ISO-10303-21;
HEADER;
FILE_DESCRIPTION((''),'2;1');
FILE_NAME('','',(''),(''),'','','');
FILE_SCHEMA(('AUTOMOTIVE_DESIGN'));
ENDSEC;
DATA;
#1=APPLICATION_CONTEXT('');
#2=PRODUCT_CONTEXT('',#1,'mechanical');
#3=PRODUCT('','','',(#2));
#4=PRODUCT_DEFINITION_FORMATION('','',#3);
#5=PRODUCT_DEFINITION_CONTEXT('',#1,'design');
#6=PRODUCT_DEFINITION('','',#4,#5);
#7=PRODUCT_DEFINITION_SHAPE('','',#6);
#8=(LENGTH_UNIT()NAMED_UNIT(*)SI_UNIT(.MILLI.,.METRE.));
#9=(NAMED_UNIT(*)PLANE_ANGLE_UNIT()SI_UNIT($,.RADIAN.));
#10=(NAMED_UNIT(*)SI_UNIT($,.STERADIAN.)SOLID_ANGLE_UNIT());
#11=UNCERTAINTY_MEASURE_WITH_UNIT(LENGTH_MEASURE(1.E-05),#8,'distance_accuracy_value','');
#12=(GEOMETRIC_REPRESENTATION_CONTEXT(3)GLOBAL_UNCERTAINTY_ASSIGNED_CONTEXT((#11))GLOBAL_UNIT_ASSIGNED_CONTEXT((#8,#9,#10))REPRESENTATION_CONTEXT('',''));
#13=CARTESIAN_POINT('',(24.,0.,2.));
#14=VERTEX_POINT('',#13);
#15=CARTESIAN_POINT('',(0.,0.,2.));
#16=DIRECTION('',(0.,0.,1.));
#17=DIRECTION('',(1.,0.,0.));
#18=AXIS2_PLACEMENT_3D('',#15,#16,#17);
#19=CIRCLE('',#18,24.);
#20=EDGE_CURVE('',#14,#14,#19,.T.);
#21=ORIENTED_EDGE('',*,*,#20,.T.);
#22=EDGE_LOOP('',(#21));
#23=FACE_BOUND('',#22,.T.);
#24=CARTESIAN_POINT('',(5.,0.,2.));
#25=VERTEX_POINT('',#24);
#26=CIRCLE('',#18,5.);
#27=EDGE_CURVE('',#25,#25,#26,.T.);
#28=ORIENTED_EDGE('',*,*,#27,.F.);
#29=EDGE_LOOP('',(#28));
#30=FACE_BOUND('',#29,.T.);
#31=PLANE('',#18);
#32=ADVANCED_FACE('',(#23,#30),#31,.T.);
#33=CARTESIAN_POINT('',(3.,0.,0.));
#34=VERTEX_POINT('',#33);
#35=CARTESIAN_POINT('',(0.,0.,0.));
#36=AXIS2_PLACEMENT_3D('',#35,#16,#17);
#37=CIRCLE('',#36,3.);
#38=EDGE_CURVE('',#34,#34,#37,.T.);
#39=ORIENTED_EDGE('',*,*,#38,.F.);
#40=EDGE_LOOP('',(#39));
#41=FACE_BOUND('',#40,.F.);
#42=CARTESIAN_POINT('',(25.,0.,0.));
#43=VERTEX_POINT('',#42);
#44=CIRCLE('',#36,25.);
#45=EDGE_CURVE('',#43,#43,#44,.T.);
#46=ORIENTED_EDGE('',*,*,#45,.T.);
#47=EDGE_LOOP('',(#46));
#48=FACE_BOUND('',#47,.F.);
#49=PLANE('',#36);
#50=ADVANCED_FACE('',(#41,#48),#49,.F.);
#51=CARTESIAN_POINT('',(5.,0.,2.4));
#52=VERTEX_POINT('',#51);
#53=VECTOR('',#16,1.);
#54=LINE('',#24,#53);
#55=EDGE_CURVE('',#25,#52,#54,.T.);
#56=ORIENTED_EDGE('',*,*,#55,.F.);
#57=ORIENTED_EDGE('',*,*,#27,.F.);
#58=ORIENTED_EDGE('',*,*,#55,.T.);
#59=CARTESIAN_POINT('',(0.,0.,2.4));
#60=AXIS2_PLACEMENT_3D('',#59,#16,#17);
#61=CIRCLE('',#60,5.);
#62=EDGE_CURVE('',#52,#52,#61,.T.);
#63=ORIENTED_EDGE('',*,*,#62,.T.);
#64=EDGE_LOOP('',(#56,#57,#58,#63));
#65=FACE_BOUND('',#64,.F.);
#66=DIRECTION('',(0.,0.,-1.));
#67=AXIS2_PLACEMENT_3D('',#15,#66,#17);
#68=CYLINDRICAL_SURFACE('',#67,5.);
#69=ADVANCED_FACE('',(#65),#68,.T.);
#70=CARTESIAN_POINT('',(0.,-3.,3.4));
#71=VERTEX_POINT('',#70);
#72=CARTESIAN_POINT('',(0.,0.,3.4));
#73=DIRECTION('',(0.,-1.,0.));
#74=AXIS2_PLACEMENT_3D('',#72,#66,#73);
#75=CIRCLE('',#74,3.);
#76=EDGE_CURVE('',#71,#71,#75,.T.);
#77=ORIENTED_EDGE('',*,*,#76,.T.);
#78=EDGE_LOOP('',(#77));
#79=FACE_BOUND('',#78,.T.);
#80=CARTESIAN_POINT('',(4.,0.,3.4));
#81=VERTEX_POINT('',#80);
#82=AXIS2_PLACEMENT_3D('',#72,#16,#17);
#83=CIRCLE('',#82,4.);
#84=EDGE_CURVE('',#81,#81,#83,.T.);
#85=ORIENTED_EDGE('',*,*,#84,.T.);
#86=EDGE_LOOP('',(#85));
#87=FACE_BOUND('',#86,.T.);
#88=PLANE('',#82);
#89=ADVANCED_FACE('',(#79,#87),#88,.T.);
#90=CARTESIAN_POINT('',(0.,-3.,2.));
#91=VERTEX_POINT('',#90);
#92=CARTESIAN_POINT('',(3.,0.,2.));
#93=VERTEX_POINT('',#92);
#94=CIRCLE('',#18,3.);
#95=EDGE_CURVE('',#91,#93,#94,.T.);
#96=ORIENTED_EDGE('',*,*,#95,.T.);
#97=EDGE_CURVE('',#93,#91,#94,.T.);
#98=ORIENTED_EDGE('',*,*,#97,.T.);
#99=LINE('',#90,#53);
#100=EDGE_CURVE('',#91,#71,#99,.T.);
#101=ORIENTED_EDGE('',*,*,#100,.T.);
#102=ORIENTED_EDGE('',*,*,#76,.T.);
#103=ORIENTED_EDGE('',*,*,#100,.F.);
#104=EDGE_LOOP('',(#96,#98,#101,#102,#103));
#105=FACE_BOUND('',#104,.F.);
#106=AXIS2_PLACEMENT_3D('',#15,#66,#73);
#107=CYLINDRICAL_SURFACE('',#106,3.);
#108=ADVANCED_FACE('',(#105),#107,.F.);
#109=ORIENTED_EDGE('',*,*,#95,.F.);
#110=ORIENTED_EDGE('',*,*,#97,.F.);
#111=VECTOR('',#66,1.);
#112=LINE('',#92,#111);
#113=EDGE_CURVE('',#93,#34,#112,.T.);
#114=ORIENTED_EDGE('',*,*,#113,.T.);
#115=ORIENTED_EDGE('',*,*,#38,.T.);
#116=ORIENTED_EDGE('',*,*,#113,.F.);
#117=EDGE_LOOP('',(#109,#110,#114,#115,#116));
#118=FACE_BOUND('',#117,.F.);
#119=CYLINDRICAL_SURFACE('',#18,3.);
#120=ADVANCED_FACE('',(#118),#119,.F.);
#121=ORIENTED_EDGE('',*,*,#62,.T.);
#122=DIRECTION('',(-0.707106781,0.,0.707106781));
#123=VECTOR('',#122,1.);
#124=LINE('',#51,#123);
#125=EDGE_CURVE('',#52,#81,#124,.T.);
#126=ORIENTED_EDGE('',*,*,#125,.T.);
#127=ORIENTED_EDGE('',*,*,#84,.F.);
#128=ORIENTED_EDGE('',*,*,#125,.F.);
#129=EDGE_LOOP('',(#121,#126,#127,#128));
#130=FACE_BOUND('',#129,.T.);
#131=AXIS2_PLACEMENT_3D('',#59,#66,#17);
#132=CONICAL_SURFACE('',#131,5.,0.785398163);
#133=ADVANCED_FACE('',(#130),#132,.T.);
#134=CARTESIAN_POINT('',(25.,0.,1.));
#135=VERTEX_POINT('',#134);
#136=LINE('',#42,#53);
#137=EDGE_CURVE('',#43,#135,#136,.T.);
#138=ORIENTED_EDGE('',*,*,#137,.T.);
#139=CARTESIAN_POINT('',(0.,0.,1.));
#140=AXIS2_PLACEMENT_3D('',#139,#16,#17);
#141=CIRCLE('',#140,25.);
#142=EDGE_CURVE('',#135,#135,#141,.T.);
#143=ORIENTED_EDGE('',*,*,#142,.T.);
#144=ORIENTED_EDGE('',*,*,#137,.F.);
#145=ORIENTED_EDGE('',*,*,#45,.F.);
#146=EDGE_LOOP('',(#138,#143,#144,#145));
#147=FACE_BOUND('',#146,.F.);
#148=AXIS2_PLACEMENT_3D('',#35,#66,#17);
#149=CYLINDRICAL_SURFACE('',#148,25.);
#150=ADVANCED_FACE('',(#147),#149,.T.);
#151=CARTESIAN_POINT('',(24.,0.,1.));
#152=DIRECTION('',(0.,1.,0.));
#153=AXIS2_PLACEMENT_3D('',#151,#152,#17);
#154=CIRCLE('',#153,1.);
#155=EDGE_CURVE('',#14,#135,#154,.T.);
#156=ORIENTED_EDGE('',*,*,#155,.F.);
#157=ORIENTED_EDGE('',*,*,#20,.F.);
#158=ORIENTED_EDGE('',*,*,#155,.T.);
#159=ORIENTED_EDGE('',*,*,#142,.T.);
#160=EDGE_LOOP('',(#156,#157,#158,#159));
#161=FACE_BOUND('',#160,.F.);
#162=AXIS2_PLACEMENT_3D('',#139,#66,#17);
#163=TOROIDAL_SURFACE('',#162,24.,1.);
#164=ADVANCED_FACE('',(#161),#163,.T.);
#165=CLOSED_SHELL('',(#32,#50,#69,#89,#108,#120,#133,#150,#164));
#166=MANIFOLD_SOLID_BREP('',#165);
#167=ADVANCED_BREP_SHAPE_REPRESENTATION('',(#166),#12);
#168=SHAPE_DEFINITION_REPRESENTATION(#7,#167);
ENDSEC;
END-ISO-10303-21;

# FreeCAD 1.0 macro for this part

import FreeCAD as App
import Part
import Sketcher

V = App.Vector
Q = App.Units.Quantity


def edges_at(feature, points):
    """Names of the edges that pass closest to the given points."""
    edges = feature.Shape.Edges
    near = lambda p: min(range(len(edges)), key=lambda i: edges[i].distToShape(Part.Vertex(*p))[0])
    return sorted({f"Edge{near(p) + 1}" for p in points})

doc = App.newDocument("Part")
body = doc.addObject("PartDesign::Body", "Body")

sketch1 = doc.addObject("Sketcher::SketchObject", "Sketch")
body.addObject(sketch1)
sketch1.AttachmentSupport = (doc.XY_Plane, [""])
sketch1.MapMode = "FlatFace"
sketch1.addGeometry(Part.Circle(V(0, 0, 0), V(0, 0, 1), 25), False)
sketch1.addConstraint([
    Sketcher.Constraint("Coincident", 0, 3, -1, 1),
    Sketcher.Constraint("Diameter", 0, Q("50 mm")),
])
pad1 = doc.addObject("PartDesign::Pad", "Pad")
body.addObject(pad1)
pad1.Profile = sketch1
pad1.Length = 2

sketch2 = doc.addObject("Sketcher::SketchObject", "Sketch001")
body.addObject(sketch2)
sketch2.AttachmentSupport = (doc.XY_Plane, [""])
sketch2.MapMode = "FlatFace"
sketch2.AttachmentOffset = App.Placement(V(0, 0, 2), App.Rotation())
sketch2.addGeometry(Part.Circle(V(0, 0, 0), V(0, 0, 1), 3), False)
sketch2.addConstraint([
    Sketcher.Constraint("Coincident", 0, 3, -1, 1),
    Sketcher.Constraint("Diameter", 0, Q("6 mm")),
])
pocket1 = doc.addObject("PartDesign::Pocket", "Pocket")
body.addObject(pocket1)
pocket1.Profile = sketch2
pocket1.Length = 5

sketch3 = doc.addObject("Sketcher::SketchObject", "Sketch002")
body.addObject(sketch3)
sketch3.AttachmentSupport = (doc.XY_Plane, [""])
sketch3.MapMode = "FlatFace"
sketch3.AttachmentOffset = App.Placement(V(0, 0, 2), App.Rotation())
sketch3.addGeometry(Part.Circle(V(0, 0, 0), V(0, 0, 1), 5), False)
sketch3.addConstraint([
    Sketcher.Constraint("Coincident", 0, 3, -1, 1),
    Sketcher.Constraint("Diameter", 0, Q("10 mm")),
])
pad2 = doc.addObject("PartDesign::Pad", "Pad001")
body.addObject(pad2)
pad2.Profile = sketch3
pad2.Length = 1.4

sketch4 = doc.addObject("Sketcher::SketchObject", "Sketch003")
body.addObject(sketch4)
sketch4.AttachmentSupport = (doc.XY_Plane, [""])
sketch4.MapMode = "FlatFace"
sketch4.AttachmentOffset = App.Placement(V(0, 0, 2), App.Rotation())
sketch4.addGeometry(Part.Circle(V(0, 0, 0), V(0, 0, 1), 3), False)
sketch4.addConstraint([
    Sketcher.Constraint("Coincident", 0, 3, -1, 1),
    Sketcher.Constraint("Diameter", 0, Q("6 mm")),
])
pocket2 = doc.addObject("PartDesign::Pocket", "Pocket001")
body.addObject(pocket2)
pocket2.Profile = sketch4
pocket2.Length = 5
pocket2.Reversed = True
doc.recompute()

fillet = doc.addObject("PartDesign::Fillet", "Fillet")
body.addObject(fillet)
fillet.Base = (pocket2, edges_at(pocket2, [(-25, 0, 2)]))
fillet.Radius = 1
doc.recompute()

chamfer = doc.addObject("PartDesign::Chamfer", "Chamfer")
body.addObject(chamfer)
chamfer.Base = (fillet, edges_at(fillet, [(-5, 0, 3.4)]))
chamfer.Size = 1

doc.recompute()
